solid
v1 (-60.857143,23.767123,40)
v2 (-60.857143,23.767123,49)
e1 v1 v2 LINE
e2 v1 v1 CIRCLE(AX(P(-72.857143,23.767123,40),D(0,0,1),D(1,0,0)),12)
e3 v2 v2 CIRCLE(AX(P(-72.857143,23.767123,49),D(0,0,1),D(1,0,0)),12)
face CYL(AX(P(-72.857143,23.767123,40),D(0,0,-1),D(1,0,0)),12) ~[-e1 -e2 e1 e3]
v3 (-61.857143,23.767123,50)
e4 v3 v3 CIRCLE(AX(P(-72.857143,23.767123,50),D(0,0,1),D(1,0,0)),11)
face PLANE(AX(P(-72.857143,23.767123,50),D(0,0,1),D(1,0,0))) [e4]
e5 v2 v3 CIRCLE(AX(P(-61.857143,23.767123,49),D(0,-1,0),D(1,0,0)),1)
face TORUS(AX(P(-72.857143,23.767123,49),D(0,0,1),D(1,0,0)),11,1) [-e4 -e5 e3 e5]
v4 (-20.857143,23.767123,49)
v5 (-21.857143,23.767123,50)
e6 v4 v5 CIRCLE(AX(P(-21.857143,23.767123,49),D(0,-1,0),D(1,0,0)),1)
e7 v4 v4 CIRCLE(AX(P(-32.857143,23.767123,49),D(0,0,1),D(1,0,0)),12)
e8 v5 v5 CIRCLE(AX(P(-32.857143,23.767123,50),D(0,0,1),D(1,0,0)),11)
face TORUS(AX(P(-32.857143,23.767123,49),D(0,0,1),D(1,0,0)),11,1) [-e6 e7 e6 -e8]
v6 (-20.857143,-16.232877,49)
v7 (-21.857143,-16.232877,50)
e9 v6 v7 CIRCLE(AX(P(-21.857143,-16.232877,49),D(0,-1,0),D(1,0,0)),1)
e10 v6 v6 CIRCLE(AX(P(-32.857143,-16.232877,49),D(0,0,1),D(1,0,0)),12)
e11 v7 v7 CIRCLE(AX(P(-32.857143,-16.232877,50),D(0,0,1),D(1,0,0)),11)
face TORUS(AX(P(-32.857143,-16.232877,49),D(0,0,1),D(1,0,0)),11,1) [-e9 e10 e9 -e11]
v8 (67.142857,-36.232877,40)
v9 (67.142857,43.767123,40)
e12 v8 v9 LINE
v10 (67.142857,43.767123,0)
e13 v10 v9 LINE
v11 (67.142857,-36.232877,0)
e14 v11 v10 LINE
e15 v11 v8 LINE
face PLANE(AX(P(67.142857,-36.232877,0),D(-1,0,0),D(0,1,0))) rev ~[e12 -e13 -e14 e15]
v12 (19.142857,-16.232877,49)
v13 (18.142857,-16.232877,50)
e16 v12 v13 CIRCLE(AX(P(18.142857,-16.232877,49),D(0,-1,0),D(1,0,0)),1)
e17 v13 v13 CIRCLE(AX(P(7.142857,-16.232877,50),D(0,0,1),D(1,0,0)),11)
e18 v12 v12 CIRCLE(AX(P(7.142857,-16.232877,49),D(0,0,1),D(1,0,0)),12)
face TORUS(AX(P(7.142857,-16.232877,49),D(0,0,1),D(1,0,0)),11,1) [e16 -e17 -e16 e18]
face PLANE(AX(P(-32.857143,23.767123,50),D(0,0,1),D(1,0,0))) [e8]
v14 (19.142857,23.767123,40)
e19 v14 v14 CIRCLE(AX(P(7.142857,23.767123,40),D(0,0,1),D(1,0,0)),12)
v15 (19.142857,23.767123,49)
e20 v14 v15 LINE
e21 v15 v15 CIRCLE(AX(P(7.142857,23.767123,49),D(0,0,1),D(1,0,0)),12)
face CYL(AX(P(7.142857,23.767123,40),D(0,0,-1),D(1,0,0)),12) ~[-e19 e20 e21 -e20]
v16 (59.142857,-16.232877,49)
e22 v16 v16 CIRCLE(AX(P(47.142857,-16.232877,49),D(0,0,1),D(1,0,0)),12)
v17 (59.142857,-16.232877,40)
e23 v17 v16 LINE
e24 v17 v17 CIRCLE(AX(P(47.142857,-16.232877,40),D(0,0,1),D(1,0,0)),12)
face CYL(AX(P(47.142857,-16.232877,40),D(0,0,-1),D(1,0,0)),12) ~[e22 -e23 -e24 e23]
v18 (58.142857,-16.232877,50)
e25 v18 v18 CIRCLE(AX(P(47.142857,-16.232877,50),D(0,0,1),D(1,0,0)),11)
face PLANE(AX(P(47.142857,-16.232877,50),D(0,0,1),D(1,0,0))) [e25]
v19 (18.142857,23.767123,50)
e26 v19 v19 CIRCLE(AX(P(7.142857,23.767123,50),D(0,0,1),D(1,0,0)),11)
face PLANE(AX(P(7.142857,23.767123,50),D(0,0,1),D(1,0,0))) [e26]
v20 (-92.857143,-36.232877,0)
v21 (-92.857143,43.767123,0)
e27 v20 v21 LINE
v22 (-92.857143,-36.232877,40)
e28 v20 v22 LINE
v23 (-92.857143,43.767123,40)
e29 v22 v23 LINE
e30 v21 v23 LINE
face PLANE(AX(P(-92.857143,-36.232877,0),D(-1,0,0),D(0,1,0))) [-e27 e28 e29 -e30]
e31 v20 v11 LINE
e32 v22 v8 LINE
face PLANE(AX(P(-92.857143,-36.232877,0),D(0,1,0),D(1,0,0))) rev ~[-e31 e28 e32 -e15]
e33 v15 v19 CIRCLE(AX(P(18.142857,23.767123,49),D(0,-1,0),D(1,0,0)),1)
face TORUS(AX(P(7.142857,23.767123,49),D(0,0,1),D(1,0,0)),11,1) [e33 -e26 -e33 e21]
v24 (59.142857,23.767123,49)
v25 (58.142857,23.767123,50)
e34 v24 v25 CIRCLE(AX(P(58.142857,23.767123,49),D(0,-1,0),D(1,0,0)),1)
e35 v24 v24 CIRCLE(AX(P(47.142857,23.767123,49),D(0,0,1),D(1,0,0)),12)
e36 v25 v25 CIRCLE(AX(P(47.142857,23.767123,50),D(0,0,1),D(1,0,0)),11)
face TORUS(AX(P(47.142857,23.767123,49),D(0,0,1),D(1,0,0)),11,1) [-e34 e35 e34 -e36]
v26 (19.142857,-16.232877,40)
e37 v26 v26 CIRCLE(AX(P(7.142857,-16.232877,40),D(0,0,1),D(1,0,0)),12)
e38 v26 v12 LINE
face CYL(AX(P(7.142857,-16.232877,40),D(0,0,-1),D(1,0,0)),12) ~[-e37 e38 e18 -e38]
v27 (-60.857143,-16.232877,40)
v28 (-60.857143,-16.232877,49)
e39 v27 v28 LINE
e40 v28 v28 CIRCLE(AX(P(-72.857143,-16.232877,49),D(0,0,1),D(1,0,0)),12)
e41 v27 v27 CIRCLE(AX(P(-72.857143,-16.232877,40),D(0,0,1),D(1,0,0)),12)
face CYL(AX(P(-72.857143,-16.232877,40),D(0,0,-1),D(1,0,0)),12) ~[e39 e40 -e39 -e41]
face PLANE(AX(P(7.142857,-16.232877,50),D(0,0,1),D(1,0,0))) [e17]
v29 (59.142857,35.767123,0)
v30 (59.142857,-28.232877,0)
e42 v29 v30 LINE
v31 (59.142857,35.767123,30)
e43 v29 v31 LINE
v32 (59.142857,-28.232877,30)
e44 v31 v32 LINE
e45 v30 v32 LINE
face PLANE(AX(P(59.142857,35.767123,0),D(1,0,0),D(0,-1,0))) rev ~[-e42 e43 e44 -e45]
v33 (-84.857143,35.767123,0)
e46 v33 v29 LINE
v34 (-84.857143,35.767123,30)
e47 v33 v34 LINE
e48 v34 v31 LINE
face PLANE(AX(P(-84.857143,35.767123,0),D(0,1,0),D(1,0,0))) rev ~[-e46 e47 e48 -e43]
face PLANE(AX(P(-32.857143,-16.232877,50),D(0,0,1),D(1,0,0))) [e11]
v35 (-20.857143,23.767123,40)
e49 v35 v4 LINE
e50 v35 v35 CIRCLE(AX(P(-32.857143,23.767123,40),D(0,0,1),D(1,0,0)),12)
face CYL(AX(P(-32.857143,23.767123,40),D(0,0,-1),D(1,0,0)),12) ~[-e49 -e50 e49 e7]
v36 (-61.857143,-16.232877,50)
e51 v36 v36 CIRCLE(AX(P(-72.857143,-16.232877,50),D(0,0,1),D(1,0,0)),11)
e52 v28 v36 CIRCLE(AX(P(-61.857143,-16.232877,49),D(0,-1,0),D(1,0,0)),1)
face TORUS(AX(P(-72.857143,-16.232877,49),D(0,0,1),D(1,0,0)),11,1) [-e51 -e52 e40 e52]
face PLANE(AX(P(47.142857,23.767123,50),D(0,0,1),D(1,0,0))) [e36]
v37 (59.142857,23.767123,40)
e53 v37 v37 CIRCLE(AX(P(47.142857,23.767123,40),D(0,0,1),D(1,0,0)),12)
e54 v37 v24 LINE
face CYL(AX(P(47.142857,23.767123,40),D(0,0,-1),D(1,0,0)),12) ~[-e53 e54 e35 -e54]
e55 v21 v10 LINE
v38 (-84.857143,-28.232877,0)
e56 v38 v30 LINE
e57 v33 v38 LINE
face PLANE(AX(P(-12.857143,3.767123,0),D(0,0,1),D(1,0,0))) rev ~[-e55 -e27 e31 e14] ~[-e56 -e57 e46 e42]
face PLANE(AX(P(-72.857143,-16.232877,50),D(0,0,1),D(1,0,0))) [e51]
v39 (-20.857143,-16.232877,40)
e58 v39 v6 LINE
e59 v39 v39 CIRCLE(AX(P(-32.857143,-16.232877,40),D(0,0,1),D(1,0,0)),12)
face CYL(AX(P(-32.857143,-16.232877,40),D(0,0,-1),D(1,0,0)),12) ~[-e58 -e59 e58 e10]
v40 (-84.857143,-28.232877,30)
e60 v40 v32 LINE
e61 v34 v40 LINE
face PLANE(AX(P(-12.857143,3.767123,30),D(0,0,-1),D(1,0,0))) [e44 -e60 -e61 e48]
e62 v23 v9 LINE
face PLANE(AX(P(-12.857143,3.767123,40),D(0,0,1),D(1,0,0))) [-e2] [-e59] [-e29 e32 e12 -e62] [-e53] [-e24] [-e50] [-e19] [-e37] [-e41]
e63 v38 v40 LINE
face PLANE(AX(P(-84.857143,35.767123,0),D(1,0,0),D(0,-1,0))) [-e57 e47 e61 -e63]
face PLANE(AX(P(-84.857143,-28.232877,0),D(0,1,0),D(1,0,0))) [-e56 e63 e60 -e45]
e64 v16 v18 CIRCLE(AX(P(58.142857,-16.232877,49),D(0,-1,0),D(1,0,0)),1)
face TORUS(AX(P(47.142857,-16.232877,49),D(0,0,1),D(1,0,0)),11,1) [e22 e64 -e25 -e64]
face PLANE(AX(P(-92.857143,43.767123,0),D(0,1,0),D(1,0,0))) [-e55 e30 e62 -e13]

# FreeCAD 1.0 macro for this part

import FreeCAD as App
import Part
import Sketcher

V = App.Vector


def edges_at(feature, points):
    """Names of the edges that pass closest to the given points."""
    edges = feature.Shape.Edges
    near = lambda p: min(range(len(edges)), key=lambda i: edges[i].distToShape(Part.Vertex(*p))[0])
    return sorted({f"Edge{near(p) + 1}" for p in points})


def add_polygon(sketch, points):
    """Adds a closed chain of lines whose ends are joined by coincident constraints."""
    first, n = sketch.GeometryCount, len(points)
    for a, b in zip(points, points[1:] + points[:1]):
        sketch.addGeometry(Part.LineSegment(App.Vector(*a, 0), App.Vector(*b, 0)), False)
    for i in range(n):
        sketch.addConstraint(Sketcher.Constraint("Coincident", first + i, 2, first + (i + 1) % n, 1))

doc = App.newDocument("Part")
body = doc.addObject("PartDesign::Body", "Body")

sketch1 = body.newObject("Sketcher::SketchObject", "Sketch")
sketch1.AttachmentSupport = (doc.getObject("XY_Plane"), [""])
sketch1.MapMode = "FlatFace"
add_polygon(sketch1, [(-93, 44), (-93, -36), (67, -36), (67, 44)])
sketch1.addConstraint(Sketcher.Constraint("Vertical", 0))
sketch1.addConstraint(Sketcher.Constraint("Horizontal", 1))
sketch1.addConstraint(Sketcher.Constraint("Vertical", 2))
sketch1.addConstraint(Sketcher.Constraint("Horizontal", 3))
sketch1.addConstraint(Sketcher.Constraint("DistanceX", 1, 1, 1, 2, 160.0))
sketch1.addConstraint(Sketcher.Constraint("DistanceY", 0, 2, 0, 1, 80.0))
sketch1.addConstraint(Sketcher.Constraint("DistanceX", 0, 2, -1, 1, 92.857143))
sketch1.addConstraint(Sketcher.Constraint("DistanceY", 0, 2, -1, 1, 36.232877))
pad1 = body.newObject("PartDesign::Pad", "Pad")
pad1.Profile = sketch1
pad1.Length = 40

sketch2 = body.newObject("Sketcher::SketchObject", "Sketch001")
sketch2.AttachmentSupport = (doc.getObject("XY_Plane"), [""])
sketch2.MapMode = "FlatFace"
add_polygon(sketch2, [(-85, -28), (-85, 36), (59, 36), (59, -28)])
sketch2.addConstraint(Sketcher.Constraint("Vertical", 0))
sketch2.addConstraint(Sketcher.Constraint("Horizontal", 1))
sketch2.addConstraint(Sketcher.Constraint("Vertical", 2))
sketch2.addConstraint(Sketcher.Constraint("Horizontal", 3))
sketch2.addConstraint(Sketcher.Constraint("DistanceX", 1, 1, 1, 2, 144.0))
sketch2.addConstraint(Sketcher.Constraint("DistanceY", 0, 1, 0, 2, 64.0))
sketch2.addConstraint(Sketcher.Constraint("DistanceX", 0, 2, -1, 1, 84.857143))
sketch2.addConstraint(Sketcher.Constraint("DistanceY", -1, 1, 0, 2, 35.767123))
pocket1 = body.newObject("PartDesign::Pocket", "Pocket")
pocket1.Profile = sketch2
pocket1.Length = 30
pocket1.Reversed = True

sketch3 = body.newObject("Sketcher::SketchObject", "Sketch002")
sketch3.AttachmentSupport = (doc.getObject("XY_Plane"), [""])
sketch3.MapMode = "FlatFace"
sketch3.AttachmentOffset = App.Placement(V(0, 0, 40), App.Rotation())
sketch3.addGeometry(Part.Circle(V(-73, 24, 0), V(0, 0, 1), 12), False)
sketch3.addGeometry(Part.Circle(V(-73, -16, 0), V(0, 0, 1), 12), False)
sketch3.addGeometry(Part.Circle(V(-33, 24, 0), V(0, 0, 1), 12), False)
sketch3.addGeometry(Part.Circle(V(-33, -16, 0), V(0, 0, 1), 12), False)
sketch3.addGeometry(Part.Circle(V(7, 24, 0), V(0, 0, 1), 12), False)
sketch3.addGeometry(Part.Circle(V(7, -16, 0), V(0, 0, 1), 12), False)
sketch3.addGeometry(Part.Circle(V(47, 24, 0), V(0, 0, 1), 12), False)
sketch3.addGeometry(Part.Circle(V(47, -16, 0), V(0, 0, 1), 12), False)
sketch3.addConstraint(Sketcher.Constraint("Equal", 0, 1))
sketch3.addConstraint(Sketcher.Constraint("Equal", 1, 2))
sketch3.addConstraint(Sketcher.Constraint("Equal", 2, 3))
sketch3.addConstraint(Sketcher.Constraint("Equal", 3, 4))
sketch3.addConstraint(Sketcher.Constraint("Equal", 4, 5))
sketch3.addConstraint(Sketcher.Constraint("Equal", 5, 6))
sketch3.addConstraint(Sketcher.Constraint("Equal", 6, 7))
sketch3.addConstraint(Sketcher.Constraint("Horizontal", 0, 3, 2, 3))
sketch3.addConstraint(Sketcher.Constraint("Horizontal", 1, 3, 3, 3))
sketch3.addConstraint(Sketcher.Constraint("Horizontal", 2, 3, 4, 3))
sketch3.addConstraint(Sketcher.Constraint("Horizontal", 3, 3, 5, 3))
sketch3.addConstraint(Sketcher.Constraint("Horizontal", 4, 3, 6, 3))
sketch3.addConstraint(Sketcher.Constraint("Horizontal", 5, 3, 7, 3))
sketch3.addConstraint(Sketcher.Constraint("Vertical", 0, 3, 1, 3))
sketch3.addConstraint(Sketcher.Constraint("Vertical", 2, 3, 3, 3))
sketch3.addConstraint(Sketcher.Constraint("Vertical", 4, 3, 5, 3))
sketch3.addConstraint(Sketcher.Constraint("Vertical", 6, 3, 7, 3))
sketch3.addConstraint(Sketcher.Constraint("Diameter", 0, 24.0))
sketch3.addConstraint(Sketcher.Constraint("DistanceY", 1, 3, 0, 3, 40.0))
sketch3.addConstraint(Sketcher.Constraint("DistanceX", 0, 3, 2, 3, 40.0))
sketch3.addConstraint(Sketcher.Constraint("DistanceX", 2, 3, 4, 3, 40.0))
sketch3.addConstraint(Sketcher.Constraint("DistanceX", 4, 3, 6, 3, 40.0))
sketch3.addConstraint(Sketcher.Constraint("DistanceX", 0, 3, -1, 1, 72.857143))
sketch3.addConstraint(Sketcher.Constraint("DistanceY", -1, 1, 0, 3, 23.767123))
pad2 = body.newObject("PartDesign::Pad", "Pad001")
pad2.Profile = sketch3
pad2.Length = 10
doc.recompute()

fillet = body.newObject("PartDesign::Fillet", "Fillet")
fillet.Base = (pad2, edges_at(pad2, [
    (-84.857, 23.767, 50),
    (-44.857, -16.233, 50),
    (-44.857, 23.767, 50),
    (-84.857, -16.233, 50),
    (-4.857, -16.233, 50),
    (-4.857, 23.767, 50),
    (35.143, -16.233, 50),
    (35.143, 23.767, 50),
]))
fillet.Radius = 1

doc.recompute()
